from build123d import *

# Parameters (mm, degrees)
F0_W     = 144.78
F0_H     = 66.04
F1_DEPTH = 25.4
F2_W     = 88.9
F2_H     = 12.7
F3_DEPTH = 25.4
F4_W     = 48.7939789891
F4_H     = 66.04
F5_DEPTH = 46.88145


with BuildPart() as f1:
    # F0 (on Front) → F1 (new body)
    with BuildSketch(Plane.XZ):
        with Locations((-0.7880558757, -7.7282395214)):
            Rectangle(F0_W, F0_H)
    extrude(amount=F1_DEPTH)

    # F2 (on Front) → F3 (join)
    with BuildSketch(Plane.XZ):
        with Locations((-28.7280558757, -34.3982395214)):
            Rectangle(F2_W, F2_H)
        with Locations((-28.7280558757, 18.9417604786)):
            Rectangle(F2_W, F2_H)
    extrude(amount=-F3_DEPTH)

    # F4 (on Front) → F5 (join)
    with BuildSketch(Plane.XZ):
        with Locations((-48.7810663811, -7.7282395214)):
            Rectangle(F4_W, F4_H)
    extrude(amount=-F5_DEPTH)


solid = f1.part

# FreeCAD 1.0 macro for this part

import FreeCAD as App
import Part
import Sketcher

V = App.Vector
Q = App.Units.Quantity

doc = App.newDocument("Part")
params = doc.addObject("Spreadsheet::Sheet", "Params")
for row, (alias, value) in enumerate([
    ("sketch1_width", "5.7 in"),
    ("sketch1_height", "2.6 in"),
    ("pad1_length", "1 in"),
    ("sketch2_width", "3.5 in"),
    ("sketch2_height", "0.5 in"),
    ("pad2_length", "1 in"),
    ("sketch3_height", "2.6 in"),
    ("pad3_length", "46.88145 mm"),
], start=1):
    params.set(f"A{row}", alias)
    params.set(f"B{row}", "=" + value)
    params.setAlias(f"B{row}", alias)

body = doc.addObject("PartDesign::Body", "Body")

# Sketch on XZ plane
sketch1 = doc.addObject("Sketcher::SketchObject", "Sketch")
body.addObject(sketch1)
sketch1.AttachmentSupport = (doc.XZ_Plane, [""])
sketch1.MapMode = "FlatFace"
sketch1.addGeometry(Part.LineSegment(V(-73, 25, 0), V(-73, -41, 0)), False)
sketch1.addGeometry(Part.LineSegment(V(-73, -41, 0), V(72, -41, 0)), False)
sketch1.addGeometry(Part.LineSegment(V(72, -41, 0), V(72, 25, 0)), False)
sketch1.addGeometry(Part.LineSegment(V(72, 25, 0), V(-73, 25, 0)), False)
sketch1.addConstraint(Sketcher.Constraint("Coincident", 0, 2, 1, 1))
sketch1.addConstraint(Sketcher.Constraint("Coincident", 1, 2, 2, 1))
sketch1.addConstraint(Sketcher.Constraint("Coincident", 2, 2, 3, 1))
sketch1.addConstraint(Sketcher.Constraint("Coincident", 3, 2, 0, 1))
sketch1.addConstraint(Sketcher.Constraint("Vertical", 0))
sketch1.addConstraint(Sketcher.Constraint("Horizontal", 1))
sketch1.addConstraint(Sketcher.Constraint("Vertical", 2))
sketch1.addConstraint(Sketcher.Constraint("Horizontal", 3))
sketch1.addConstraint(Sketcher.Constraint("DistanceX", 1, 1, 1, 2, Q("5.7 in")))
sketch1.addConstraint(Sketcher.Constraint("DistanceY", 0, 2, 0, 1, Q("2.6 in")))
sketch1.addConstraint(Sketcher.Constraint("DistanceY", 0, 2, -1, 1, Q("40.74824 mm")))
sketch1.addConstraint(Sketcher.Constraint("DistanceX", 0, 2, -1, 1, Q("73.178056 mm")))
sketch1.setExpression("Constraints[8]", "Params.sketch1_width")
sketch1.setExpression("Constraints[9]", "Params.sketch1_height")
pad1 = doc.addObject("PartDesign::Pad", "Pad")
body.addObject(pad1)
pad1.Profile = sketch1
pad1.setExpression("Length", "Params.pad1_length")

# Sketch on XZ plane
sketch2 = doc.addObject("Sketcher::SketchObject", "Sketch001")
body.addObject(sketch2)
sketch2.AttachmentSupport = (doc.XZ_Plane, [""])
sketch2.MapMode = "FlatFace"
sketch2.addGeometry(Part.LineSegment(V(-73, -28, 0), V(-73, -41, 0)), False)
sketch2.addGeometry(Part.LineSegment(V(-73, -41, 0), V(16, -41, 0)), False)
sketch2.addGeometry(Part.LineSegment(V(16, -41, 0), V(16, -28, 0)), False)
sketch2.addGeometry(Part.LineSegment(V(16, -28, 0), V(-73, -28, 0)), False)
sketch2.addGeometry(Part.LineSegment(V(-73, 25, 0), V(-73, 13, 0)), False)
sketch2.addGeometry(Part.LineSegment(V(-73, 13, 0), V(16, 13, 0)), False)
sketch2.addGeometry(Part.LineSegment(V(16, 13, 0), V(16, 25, 0)), False)
sketch2.addGeometry(Part.LineSegment(V(16, 25, 0), V(-73, 25, 0)), False)
sketch2.addConstraint(Sketcher.Constraint("Coincident", 0, 2, 1, 1))
sketch2.addConstraint(Sketcher.Constraint("Coincident", 1, 2, 2, 1))
sketch2.addConstraint(Sketcher.Constraint("Coincident", 2, 2, 3, 1))
sketch2.addConstraint(Sketcher.Constraint("Coincident", 3, 2, 0, 1))
sketch2.addConstraint(Sketcher.Constraint("Coincident", 4, 2, 5, 1))
sketch2.addConstraint(Sketcher.Constraint("Coincident", 5, 2, 6, 1))
sketch2.addConstraint(Sketcher.Constraint("Coincident", 6, 2, 7, 1))
sketch2.addConstraint(Sketcher.Constraint("Coincident", 7, 2, 4, 1))
sketch2.addConstraint(Sketcher.Constraint("Vertical", 0))
sketch2.addConstraint(Sketcher.Constraint("Horizontal", 1))
sketch2.addConstraint(Sketcher.Constraint("Vertical", 2))
sketch2.addConstraint(Sketcher.Constraint("Horizontal", 3))
sketch2.addConstraint(Sketcher.Constraint("Vertical", 4))
sketch2.addConstraint(Sketcher.Constraint("Horizontal", 5))
sketch2.addConstraint(Sketcher.Constraint("Vertical", 6))
sketch2.addConstraint(Sketcher.Constraint("Horizontal", 7))
sketch2.addConstraint(Sketcher.Constraint("Vertical", 3, 2, 4, 2))
sketch2.addConstraint(Sketcher.Constraint("Vertical", 2, 2, 5, 2))
sketch2.addConstraint(Sketcher.Constraint("Equal", 2, 4))
sketch2.addConstraint(Sketcher.Constraint("DistanceX", 1, 1, 1, 2, Q("3.5 in")))
sketch2.addConstraint(Sketcher.Constraint("DistanceY", 0, 2, 0, 1, Q("0.5 in")))
sketch2.addConstraint(Sketcher.Constraint("DistanceY", 3, 2, 4, 2, Q("1.6 in")))
sketch2.addConstraint(Sketcher.Constraint("DistanceY", 0, 2, -1, 1, Q("40.74824 mm")))
sketch2.addConstraint(Sketcher.Constraint("DistanceX", 0, 2, -1, 1, Q("73.178056 mm")))
sketch2.setExpression("Constraints[19]", "Params.sketch2_width")
sketch2.setExpression("Constraints[20]", "Params.sketch2_height")
pad2 = doc.addObject("PartDesign::Pad", "Pad001")
body.addObject(pad2)
pad2.Profile = sketch2
pad2.setExpression("Length", "Params.pad2_length")
pad2.Reversed = True

# Sketch on XZ plane
sketch3 = doc.addObject("Sketcher::SketchObject", "Sketch002")
body.addObject(sketch3)
sketch3.AttachmentSupport = (doc.XZ_Plane, [""])
sketch3.MapMode = "FlatFace"
sketch3.addGeometry(Part.LineSegment(V(-73, 25, 0), V(-73, -41, 0)), False)
sketch3.addGeometry(Part.LineSegment(V(-73, -41, 0), V(-24, -41, 0)), False)
sketch3.addGeometry(Part.LineSegment(V(-24, -41, 0), V(-24, 25, 0)), False)
sketch3.addGeometry(Part.LineSegment(V(-24, 25, 0), V(-73, 25, 0)), False)
sketch3.addConstraint(Sketcher.Constraint("Coincident", 0, 2, 1, 1))
sketch3.addConstraint(Sketcher.Constraint("Coincident", 1, 2, 2, 1))
sketch3.addConstraint(Sketcher.Constraint("Coincident", 2, 2, 3, 1))
sketch3.addConstraint(Sketcher.Constraint("Coincident", 3, 2, 0, 1))
sketch3.addConstraint(Sketcher.Constraint("Vertical", 0))
sketch3.addConstraint(Sketcher.Constraint("Horizontal", 1))
sketch3.addConstraint(Sketcher.Constraint("Vertical", 2))
sketch3.addConstraint(Sketcher.Constraint("Horizontal", 3))
sketch3.addConstraint(Sketcher.Constraint("DistanceY", 0, 2, 0, 1, Q("2.6 in")))
sketch3.addConstraint(Sketcher.Constraint("DistanceX", 1, 1, 1, 2, Q("48.793979 mm")))
sketch3.addConstraint(Sketcher.Constraint("DistanceY", 0, 2, -1, 1, Q("40.74824 mm")))
sketch3.addConstraint(Sketcher.Constraint("DistanceX", 0, 2, -1, 1, Q("73.178056 mm")))
sketch3.setExpression("Constraints[8]", "Params.sketch3_height")
pad3 = doc.addObject("PartDesign::Pad", "Pad002")
body.addObject(pad3)
pad3.Profile = sketch3
pad3.setExpression("Length", "Params.pad3_length")
pad3.Reversed = True

doc.recompute()
